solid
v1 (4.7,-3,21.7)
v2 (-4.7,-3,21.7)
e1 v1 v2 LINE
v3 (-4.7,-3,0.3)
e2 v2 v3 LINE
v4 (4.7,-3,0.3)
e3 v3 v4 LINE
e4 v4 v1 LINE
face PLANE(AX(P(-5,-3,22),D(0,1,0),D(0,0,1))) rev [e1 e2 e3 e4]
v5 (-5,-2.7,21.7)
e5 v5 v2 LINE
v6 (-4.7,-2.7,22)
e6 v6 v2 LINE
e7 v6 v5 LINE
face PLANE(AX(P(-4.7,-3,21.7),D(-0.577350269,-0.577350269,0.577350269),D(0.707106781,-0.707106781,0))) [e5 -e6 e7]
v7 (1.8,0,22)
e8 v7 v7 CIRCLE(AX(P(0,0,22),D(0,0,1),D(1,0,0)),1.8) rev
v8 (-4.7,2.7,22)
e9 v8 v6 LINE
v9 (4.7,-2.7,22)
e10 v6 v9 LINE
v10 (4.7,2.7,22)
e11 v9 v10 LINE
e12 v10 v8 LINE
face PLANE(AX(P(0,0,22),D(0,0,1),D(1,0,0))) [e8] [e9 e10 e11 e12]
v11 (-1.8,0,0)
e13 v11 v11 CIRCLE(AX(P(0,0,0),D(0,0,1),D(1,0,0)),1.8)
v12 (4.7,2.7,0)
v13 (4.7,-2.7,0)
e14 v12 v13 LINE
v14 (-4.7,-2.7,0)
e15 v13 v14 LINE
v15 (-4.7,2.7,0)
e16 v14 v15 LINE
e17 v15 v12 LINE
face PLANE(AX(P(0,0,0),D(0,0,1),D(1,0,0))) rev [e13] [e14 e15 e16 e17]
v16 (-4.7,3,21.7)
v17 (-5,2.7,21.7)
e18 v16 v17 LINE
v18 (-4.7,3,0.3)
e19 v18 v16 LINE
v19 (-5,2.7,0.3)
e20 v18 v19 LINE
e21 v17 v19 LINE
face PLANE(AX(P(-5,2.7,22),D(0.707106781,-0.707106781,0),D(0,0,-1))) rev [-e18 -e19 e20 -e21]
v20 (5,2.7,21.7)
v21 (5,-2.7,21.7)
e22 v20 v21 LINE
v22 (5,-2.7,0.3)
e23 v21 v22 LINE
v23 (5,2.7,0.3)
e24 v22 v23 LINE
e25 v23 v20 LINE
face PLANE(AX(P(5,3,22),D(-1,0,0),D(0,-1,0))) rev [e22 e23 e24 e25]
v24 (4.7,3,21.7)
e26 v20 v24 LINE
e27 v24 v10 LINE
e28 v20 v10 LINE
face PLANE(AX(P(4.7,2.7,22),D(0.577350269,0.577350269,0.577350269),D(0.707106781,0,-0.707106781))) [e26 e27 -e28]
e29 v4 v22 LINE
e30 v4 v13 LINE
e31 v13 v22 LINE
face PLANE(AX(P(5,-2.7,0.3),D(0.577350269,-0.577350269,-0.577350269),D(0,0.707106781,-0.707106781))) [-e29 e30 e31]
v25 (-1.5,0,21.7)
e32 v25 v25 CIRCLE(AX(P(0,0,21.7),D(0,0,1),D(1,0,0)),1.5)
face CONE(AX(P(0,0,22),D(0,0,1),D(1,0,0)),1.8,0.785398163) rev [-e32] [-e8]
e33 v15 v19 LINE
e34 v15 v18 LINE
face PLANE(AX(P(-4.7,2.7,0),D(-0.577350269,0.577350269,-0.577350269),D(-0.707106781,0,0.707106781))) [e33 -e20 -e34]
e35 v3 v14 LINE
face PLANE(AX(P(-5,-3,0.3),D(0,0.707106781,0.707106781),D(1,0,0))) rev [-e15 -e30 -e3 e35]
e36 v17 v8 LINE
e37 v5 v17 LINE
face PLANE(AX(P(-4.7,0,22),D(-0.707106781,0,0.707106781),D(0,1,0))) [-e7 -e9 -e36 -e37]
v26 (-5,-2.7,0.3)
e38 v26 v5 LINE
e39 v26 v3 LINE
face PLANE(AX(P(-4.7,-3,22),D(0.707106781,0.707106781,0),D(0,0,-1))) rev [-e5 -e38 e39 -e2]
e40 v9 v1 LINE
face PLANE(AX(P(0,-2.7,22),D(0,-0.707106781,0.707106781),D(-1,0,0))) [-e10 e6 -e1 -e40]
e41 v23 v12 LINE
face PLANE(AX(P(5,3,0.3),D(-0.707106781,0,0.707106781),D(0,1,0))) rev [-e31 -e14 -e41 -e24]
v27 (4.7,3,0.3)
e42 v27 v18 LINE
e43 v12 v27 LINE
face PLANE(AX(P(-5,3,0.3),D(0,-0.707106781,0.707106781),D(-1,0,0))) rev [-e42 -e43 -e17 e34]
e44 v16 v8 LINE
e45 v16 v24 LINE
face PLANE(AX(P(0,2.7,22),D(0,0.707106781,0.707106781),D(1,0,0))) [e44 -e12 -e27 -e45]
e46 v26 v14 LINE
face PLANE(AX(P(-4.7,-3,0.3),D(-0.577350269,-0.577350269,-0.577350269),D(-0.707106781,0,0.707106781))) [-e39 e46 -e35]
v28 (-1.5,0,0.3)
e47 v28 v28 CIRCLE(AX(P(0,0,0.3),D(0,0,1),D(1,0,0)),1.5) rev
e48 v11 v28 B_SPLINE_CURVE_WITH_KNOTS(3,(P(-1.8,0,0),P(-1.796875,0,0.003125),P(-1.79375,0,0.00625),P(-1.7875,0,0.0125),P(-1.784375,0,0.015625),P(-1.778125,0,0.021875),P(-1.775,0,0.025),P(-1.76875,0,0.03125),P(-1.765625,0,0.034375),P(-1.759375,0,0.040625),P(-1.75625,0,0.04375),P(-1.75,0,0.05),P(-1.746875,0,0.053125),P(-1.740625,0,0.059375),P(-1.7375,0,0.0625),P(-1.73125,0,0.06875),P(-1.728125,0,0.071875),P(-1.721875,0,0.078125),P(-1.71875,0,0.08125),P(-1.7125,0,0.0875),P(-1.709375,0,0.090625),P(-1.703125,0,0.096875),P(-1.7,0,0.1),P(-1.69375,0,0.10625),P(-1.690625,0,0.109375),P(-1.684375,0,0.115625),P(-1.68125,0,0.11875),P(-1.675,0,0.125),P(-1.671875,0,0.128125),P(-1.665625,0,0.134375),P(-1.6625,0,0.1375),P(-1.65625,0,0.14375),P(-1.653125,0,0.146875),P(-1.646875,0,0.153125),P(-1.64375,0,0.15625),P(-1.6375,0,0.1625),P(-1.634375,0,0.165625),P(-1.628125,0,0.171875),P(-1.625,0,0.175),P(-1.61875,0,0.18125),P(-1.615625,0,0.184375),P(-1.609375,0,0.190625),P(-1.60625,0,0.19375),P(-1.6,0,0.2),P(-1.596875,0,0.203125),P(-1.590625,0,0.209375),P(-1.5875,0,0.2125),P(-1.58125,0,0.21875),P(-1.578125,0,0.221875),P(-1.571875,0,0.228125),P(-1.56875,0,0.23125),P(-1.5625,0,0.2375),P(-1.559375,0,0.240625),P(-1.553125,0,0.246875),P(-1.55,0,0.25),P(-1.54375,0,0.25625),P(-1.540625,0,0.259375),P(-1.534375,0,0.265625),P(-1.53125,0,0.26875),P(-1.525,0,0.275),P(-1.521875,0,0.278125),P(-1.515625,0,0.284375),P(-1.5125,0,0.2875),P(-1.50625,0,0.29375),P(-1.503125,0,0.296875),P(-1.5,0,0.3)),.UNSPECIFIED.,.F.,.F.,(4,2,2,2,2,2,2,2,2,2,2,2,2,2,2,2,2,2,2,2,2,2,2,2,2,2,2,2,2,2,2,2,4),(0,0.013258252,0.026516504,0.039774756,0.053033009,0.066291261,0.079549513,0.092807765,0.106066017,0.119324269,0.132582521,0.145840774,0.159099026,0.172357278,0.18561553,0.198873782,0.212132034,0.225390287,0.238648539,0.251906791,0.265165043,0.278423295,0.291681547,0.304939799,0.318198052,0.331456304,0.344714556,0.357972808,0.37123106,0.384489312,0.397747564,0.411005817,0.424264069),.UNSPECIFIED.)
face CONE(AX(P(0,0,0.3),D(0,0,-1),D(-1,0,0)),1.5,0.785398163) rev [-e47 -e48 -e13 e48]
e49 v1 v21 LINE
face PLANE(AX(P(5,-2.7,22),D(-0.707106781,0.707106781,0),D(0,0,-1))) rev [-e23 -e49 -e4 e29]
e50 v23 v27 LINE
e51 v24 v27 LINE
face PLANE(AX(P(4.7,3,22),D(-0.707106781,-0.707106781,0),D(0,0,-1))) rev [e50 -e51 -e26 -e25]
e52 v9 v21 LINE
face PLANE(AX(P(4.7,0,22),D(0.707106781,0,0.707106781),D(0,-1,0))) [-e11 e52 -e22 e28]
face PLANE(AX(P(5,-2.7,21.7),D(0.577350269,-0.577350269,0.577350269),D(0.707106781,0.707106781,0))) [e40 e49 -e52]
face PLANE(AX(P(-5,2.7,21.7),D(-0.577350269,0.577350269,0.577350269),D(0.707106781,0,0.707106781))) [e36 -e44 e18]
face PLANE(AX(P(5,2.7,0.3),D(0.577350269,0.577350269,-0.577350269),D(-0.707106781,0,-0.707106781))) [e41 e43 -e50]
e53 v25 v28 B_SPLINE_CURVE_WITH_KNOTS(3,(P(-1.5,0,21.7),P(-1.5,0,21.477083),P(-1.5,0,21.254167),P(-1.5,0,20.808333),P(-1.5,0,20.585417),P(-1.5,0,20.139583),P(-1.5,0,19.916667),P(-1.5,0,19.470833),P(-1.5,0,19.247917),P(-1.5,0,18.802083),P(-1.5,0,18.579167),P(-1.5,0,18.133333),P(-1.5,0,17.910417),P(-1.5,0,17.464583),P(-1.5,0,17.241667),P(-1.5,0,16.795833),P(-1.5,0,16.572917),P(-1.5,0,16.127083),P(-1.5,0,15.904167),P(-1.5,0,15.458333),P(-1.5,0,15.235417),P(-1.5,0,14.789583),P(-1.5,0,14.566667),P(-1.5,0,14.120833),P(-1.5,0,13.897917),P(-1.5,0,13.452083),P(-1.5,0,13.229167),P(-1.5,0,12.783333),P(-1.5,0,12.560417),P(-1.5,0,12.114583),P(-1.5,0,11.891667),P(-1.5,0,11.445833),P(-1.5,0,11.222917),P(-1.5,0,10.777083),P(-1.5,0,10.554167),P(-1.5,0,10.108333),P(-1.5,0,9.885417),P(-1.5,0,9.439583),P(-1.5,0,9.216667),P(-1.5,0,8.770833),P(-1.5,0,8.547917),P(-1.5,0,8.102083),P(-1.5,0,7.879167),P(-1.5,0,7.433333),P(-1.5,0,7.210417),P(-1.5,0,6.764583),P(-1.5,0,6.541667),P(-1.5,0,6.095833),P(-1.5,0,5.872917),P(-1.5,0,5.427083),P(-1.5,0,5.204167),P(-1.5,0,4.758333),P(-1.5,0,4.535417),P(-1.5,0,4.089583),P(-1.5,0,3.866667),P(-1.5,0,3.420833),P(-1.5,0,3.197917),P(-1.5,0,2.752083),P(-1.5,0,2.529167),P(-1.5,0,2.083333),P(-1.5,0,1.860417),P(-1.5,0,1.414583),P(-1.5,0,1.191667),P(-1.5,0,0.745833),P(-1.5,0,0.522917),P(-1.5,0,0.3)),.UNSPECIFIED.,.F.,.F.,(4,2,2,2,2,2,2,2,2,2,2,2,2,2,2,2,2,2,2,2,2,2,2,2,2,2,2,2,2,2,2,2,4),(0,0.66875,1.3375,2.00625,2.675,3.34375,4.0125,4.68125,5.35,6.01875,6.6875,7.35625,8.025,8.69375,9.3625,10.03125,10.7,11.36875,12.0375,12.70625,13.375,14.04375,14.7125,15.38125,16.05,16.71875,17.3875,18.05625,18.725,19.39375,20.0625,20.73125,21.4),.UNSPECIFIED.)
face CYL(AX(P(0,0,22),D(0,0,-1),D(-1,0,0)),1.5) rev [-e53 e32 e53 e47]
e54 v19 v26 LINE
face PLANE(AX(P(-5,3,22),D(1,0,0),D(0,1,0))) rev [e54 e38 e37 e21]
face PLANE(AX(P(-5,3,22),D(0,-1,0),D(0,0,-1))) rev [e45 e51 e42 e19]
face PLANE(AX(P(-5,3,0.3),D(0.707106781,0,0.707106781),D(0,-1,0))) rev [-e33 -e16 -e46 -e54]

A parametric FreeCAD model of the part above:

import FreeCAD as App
import Part
import Sketcher


def add_polygon(sketch, points):
    """Adds a closed chain of lines whose ends are joined by coincident constraints."""
    first, n = sketch.GeometryCount, len(points)
    for a, b in zip(points, points[1:] + points[:1]):
        sketch.addGeometry(Part.LineSegment(App.Vector(*a, 0), App.Vector(*b, 0)), False)
    for i in range(n):
        sketch.addConstraint(Sketcher.Constraint("Coincident", first + i, 2, first + (i + 1) % n, 1))

doc = App.newDocument("Part")
body = doc.addObject("PartDesign::Body", "Body")

# Sketch on XY plane
sketch1 = body.newObject("Sketcher::SketchObject", "Sketch")
sketch1.AttachmentSupport = (doc.getObject("XY_Plane"), [""])
sketch1.MapMode = "FlatFace"
add_polygon(sketch1, [(-5, 3), (-5, -3), (5, -3), (5, 3)])  # lines 0-3
sketch1.addConstraint([
    Sketcher.Constraint("Vertical", 0),
    Sketcher.Constraint("Horizontal", 1),
    Sketcher.Constraint("Vertical", 2),
    Sketcher.Constraint("Horizontal", 3),
    Sketcher.Constraint("Symmetric", 0, 2, 2, 2, -1, 1),
    Sketcher.Constraint("DistanceX", 1, 1, 1, 2, 10.0),
    Sketcher.Constraint("DistanceY", 0, 2, 0, 1, 6.0),
])
pad1 = body.newObject("PartDesign::Pad", "Pad")
pad1.Profile = sketch1
pad1.Length = 22

# Sketch on XY plane
sketch2 = body.newObject("Sketcher::SketchObject", "Sketch001")
sketch2.AttachmentSupport = (doc.getObject("XY_Plane"), [""])
sketch2.MapMode = "FlatFace"
sketch2.addGeometry(Part.Circle(App.Vector(0, 0, 0), App.Vector(0, 0, 1), 1.5), False)
sketch2.addConstraint([
    Sketcher.Constraint("Coincident", 0, 3, -1, 1),
    Sketcher.Constraint("Diameter", 0, 3.0),
])
pocket1 = body.newObject("PartDesign::Pocket", "Pocket")
pocket1.Profile = sketch2
pocket1.Type = "ThroughAll"
pocket1.Reversed = True
doc.recompute()

chamfer = body.newObject("PartDesign::Chamfer", "Chamfer")
chamfer.Base = (pocket1, ["Edge1"])
chamfer.UseAllEdges = True
chamfer.Size = 0.3

doc.recompute()
